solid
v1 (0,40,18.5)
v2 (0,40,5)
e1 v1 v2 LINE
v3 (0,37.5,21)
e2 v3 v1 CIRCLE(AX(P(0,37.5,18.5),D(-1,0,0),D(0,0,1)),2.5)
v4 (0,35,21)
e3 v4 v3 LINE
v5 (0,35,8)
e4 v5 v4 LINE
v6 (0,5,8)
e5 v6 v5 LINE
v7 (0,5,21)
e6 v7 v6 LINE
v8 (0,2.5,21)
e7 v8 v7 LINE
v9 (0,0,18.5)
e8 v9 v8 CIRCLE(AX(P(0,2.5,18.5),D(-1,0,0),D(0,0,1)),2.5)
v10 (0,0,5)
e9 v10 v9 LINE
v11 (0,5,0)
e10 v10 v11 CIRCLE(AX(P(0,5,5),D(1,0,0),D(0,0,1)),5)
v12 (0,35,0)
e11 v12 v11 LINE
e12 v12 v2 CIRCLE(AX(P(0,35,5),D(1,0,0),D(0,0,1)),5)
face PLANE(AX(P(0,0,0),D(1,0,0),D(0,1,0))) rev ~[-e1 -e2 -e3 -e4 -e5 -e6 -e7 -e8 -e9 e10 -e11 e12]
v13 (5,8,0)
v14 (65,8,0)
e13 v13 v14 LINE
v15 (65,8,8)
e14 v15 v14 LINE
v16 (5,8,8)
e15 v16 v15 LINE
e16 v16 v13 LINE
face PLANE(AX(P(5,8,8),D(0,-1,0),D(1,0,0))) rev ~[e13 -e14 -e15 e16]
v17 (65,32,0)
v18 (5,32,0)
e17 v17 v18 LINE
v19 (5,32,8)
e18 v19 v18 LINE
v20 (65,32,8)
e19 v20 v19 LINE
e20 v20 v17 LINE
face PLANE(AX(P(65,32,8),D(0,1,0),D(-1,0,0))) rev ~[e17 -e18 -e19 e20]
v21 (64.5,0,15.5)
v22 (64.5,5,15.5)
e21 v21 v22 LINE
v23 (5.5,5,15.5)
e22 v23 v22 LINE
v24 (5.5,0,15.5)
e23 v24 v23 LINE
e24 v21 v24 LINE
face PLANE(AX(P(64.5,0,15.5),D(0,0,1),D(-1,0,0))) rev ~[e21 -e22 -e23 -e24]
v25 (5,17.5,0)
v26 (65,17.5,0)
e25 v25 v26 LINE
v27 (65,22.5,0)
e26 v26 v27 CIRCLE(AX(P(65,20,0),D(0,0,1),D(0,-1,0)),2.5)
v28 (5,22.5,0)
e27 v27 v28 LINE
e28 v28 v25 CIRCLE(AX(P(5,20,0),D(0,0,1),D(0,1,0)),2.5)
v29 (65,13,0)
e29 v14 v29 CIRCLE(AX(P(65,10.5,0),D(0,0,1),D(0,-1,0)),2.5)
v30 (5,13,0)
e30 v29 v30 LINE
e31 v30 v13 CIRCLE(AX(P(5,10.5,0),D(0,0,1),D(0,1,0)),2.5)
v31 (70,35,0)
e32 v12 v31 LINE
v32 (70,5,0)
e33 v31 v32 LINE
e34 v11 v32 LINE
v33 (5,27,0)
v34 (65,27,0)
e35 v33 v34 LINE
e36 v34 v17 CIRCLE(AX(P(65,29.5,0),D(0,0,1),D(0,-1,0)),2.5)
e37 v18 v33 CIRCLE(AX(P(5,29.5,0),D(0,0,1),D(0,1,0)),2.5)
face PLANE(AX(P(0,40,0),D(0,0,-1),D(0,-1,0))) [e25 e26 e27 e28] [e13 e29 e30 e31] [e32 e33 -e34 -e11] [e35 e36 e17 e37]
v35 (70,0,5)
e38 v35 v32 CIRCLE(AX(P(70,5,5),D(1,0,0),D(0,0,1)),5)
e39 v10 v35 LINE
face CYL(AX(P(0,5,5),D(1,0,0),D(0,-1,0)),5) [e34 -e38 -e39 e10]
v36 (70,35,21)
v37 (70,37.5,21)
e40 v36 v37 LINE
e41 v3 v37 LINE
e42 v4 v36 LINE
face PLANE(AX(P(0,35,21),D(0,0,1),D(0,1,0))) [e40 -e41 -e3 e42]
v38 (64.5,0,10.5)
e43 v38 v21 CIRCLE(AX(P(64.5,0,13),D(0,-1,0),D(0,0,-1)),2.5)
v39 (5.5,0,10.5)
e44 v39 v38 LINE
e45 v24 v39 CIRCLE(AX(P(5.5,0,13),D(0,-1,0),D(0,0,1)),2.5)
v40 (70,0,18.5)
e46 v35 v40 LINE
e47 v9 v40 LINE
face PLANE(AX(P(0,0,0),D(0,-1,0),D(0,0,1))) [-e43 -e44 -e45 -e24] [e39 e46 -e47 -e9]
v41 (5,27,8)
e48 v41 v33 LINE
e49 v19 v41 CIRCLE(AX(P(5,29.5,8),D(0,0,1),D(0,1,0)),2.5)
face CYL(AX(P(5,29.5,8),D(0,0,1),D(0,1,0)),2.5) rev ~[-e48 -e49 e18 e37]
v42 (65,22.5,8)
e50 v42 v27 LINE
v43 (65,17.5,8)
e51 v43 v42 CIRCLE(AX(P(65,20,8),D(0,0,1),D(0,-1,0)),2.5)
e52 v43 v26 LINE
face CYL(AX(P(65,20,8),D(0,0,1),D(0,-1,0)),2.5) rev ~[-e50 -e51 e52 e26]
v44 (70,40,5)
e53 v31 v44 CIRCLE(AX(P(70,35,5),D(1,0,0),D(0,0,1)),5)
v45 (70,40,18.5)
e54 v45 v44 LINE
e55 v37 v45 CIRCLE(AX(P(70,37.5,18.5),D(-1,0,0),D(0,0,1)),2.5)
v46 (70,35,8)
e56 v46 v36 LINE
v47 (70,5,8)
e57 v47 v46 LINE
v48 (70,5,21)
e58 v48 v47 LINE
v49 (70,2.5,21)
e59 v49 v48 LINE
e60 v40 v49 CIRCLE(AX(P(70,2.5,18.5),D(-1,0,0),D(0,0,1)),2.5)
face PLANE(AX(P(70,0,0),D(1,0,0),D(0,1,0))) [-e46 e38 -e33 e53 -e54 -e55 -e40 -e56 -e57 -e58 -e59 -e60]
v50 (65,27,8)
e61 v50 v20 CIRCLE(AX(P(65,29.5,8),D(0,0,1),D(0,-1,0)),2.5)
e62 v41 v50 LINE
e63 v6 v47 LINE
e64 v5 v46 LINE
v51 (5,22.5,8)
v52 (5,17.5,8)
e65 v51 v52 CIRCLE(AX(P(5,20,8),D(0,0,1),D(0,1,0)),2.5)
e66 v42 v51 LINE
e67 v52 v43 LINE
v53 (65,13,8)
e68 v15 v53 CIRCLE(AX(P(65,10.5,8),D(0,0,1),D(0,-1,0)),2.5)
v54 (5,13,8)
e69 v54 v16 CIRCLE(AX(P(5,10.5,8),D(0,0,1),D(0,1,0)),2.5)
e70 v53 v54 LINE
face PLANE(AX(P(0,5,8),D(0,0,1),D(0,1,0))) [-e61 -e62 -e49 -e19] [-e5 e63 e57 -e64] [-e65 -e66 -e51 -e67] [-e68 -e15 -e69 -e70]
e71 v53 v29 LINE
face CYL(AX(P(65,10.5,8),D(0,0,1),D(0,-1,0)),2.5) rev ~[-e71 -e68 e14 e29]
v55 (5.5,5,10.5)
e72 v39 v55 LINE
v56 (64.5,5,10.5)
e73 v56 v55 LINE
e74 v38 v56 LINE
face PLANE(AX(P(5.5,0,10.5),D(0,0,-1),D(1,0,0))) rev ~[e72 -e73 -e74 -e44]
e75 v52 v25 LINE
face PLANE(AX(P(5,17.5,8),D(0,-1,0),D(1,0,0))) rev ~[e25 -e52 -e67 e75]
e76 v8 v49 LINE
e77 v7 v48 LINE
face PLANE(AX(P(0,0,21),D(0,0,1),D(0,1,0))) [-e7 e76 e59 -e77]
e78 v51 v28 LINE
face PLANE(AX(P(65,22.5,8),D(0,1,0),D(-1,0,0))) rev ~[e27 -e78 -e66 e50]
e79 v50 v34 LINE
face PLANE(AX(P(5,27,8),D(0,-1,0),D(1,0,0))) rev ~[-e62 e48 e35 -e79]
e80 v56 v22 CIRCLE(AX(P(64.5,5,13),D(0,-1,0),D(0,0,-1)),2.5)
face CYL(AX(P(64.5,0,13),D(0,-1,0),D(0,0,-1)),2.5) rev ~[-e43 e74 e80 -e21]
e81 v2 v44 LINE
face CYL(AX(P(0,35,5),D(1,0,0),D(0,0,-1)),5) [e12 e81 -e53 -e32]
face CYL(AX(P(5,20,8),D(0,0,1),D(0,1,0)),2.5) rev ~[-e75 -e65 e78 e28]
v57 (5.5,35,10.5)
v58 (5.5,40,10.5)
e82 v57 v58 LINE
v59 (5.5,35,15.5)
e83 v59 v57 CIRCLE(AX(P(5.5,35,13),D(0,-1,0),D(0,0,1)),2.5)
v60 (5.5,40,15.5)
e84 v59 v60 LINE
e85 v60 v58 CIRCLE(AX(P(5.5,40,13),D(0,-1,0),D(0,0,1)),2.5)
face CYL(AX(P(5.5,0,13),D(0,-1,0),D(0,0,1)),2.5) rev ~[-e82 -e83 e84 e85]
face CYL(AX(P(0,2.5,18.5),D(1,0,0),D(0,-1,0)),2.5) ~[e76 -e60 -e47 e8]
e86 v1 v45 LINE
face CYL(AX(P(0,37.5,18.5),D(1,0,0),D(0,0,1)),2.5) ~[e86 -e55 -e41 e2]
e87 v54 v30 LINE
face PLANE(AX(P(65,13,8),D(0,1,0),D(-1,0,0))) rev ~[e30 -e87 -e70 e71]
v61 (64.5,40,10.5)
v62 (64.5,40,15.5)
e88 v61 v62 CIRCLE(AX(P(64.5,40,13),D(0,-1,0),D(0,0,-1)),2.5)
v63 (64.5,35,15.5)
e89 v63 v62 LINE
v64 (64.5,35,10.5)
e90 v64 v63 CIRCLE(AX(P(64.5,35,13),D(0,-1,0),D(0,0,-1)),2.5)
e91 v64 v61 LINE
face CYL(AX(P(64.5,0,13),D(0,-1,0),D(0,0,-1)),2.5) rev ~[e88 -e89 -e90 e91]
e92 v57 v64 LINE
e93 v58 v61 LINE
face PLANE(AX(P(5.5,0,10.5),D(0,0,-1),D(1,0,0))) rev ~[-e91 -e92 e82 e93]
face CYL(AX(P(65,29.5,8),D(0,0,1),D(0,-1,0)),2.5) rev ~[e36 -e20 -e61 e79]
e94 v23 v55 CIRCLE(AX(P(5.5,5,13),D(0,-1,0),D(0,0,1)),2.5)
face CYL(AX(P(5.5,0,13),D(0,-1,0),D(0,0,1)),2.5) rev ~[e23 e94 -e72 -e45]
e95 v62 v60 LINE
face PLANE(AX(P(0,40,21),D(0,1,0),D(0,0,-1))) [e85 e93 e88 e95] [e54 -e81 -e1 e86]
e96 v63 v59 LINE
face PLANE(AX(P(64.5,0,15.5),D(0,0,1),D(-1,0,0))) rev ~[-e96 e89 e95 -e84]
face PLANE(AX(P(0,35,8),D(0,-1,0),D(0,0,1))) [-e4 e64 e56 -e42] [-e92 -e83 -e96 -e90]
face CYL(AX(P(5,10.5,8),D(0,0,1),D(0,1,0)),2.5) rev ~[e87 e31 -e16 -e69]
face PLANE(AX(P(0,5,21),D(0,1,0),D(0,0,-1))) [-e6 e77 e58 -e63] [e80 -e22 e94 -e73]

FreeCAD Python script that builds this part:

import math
import FreeCAD as App
import Part
import Sketcher
Q = App.Units.Quantity


def edges_at(feature, points):
    """Names of the edges that pass closest to the given points."""
    edges = feature.Shape.Edges
    near = lambda p: min(range(len(edges)), key=lambda i: edges[i].distToShape(Part.Vertex(*p))[0])
    return sorted({f"Edge{near(p) + 1}" for p in points})


def add_polygon(sketch, points):
    """Adds a closed chain of lines whose ends are joined by coincident constraints."""
    first, n = sketch.GeometryCount, len(points)
    for a, b in zip(points, points[1:] + points[:1]):
        sketch.addGeometry(Part.LineSegment(App.Vector(*a, 0), App.Vector(*b, 0)), False)
    for i in range(n):
        sketch.addConstraint(Sketcher.Constraint("Coincident", first + i, 2, first + (i + 1) % n, 1))

doc = App.newDocument("Part")
params = doc.addObject("Spreadsheet::Sheet", "Params")
for row, (alias, value) in enumerate([
    ("sketch1_width", "5 mm"),
    ("sketch1_width2", "30 mm"),
    ("sketch1_height", "13 mm"),
    ("pad1_length", "70 mm"),
    ("fillet_radius", "2.5 mm"),
    ("sketch2_radius", "2.5 mm"),
    ("sketch2_width", "60 mm"),
    ("pocket1_length", "8 mm"),
    ("sketch3_radius", "2.5 mm"),
    ("sketch3_width", "59 mm"),
    ("pocket2_length", "40 mm"),
    ("fillet2_radius", "5 mm"),
], start=1):
    params.set(f"A{row}", alias)
    params.set(f"B{row}", "=" + value)
    params.setAlias(f"B{row}", alias)

body = doc.addObject("PartDesign::Body", "Body")

sketch1 = doc.addObject("Sketcher::SketchObject", "Sketch")
body.addObject(sketch1)
sketch1.AttachmentSupport = (doc.YZ_Plane, [""])
sketch1.MapMode = "FlatFace"
add_polygon(sketch1, [(0, 21), (0, 0), (40, 0), (40, 21), (35, 21), (35, 8), (5, 8), (5, 21)])
sketch1.addConstraint([
    Sketcher.Constraint("Vertical", 0),
    Sketcher.Constraint("Horizontal", 1),
    Sketcher.Constraint("Vertical", 2),
    Sketcher.Constraint("Horizontal", 3),
    Sketcher.Constraint("Vertical", 4),
    Sketcher.Constraint("Horizontal", 5),
    Sketcher.Constraint("Vertical", 6),
    Sketcher.Constraint("Horizontal", 7),
    Sketcher.Constraint("Coincident", 0, 2, -1, 1),
    Sketcher.Constraint("Horizontal", 3, 2, 6, 2),
    Sketcher.Constraint("Equal", 3, 7),
    Sketcher.Constraint("DistanceX", 3, 2, 3, 1, Q("5 mm")),
    Sketcher.Constraint("DistanceX", 5, 2, 5, 1, Q("30 mm")),
    Sketcher.Constraint("DistanceY", 4, 2, 4, 1, Q("13 mm")),
    Sketcher.Constraint("DistanceY", -1, 1, 4, 2, Q("8 mm")),
])
sketch1.setExpression("Constraints[19]", "Params.sketch1_width")
sketch1.setExpression("Constraints[20]", "Params.sketch1_width2")
sketch1.setExpression("Constraints[21]", "Params.sketch1_height")
pad1 = doc.addObject("PartDesign::Pad", "Pad")
body.addObject(pad1)
pad1.Profile = sketch1
pad1.setExpression("Length", "Params.pad1_length")
doc.recompute()

fillet = doc.addObject("PartDesign::Fillet", "Fillet")
body.addObject(fillet)
fillet.Base = (pad1, edges_at(pad1, [(35, 40, 21), (35, 0, 21)]))
fillet.setExpression("Radius", "Params.fillet_radius")

sketch2 = doc.addObject("Sketcher::SketchObject", "Sketch001")
body.addObject(sketch2)
sketch2.AttachmentSupport = (doc.XY_Plane, [""])
sketch2.MapMode = "FlatFace"
sketch2.AttachmentOffset = App.Placement(App.Vector(0, 0, 8), App.Rotation())
sketch2.addGeometry([
    Part.ArcOfCircle(Part.Circle(App.Vector(5, 29.5, 0), App.Vector(0, 0, 1), 2.5), math.radians(90), math.radians(270)),
    Part.LineSegment(App.Vector(5, 27, 0), App.Vector(65, 27, 0)),
    Part.ArcOfCircle(Part.Circle(App.Vector(65, 29.5, 0), App.Vector(0, 0, 1), 2.5), math.radians(-90), math.radians(90)),
    Part.LineSegment(App.Vector(65, 32, 0), App.Vector(5, 32, 0)),
    Part.ArcOfCircle(Part.Circle(App.Vector(65, 20, 0), App.Vector(0, 0, 1), 2.5), math.radians(-90), math.radians(90)),
    Part.LineSegment(App.Vector(65, 22.5, 0), App.Vector(5, 22.5, 0)),
    Part.ArcOfCircle(Part.Circle(App.Vector(5, 20, 0), App.Vector(0, 0, 1), 2.5), math.radians(90), math.radians(270)),
    Part.LineSegment(App.Vector(5, 17.5, 0), App.Vector(65, 17.5, 0)),
    Part.ArcOfCircle(Part.Circle(App.Vector(65, 10.5, 0), App.Vector(0, 0, 1), 2.5), math.radians(-90), math.radians(90)),
    Part.LineSegment(App.Vector(65, 13, 0), App.Vector(5, 13, 0)),
    Part.ArcOfCircle(Part.Circle(App.Vector(5, 10.5, 0), App.Vector(0, 0, 1), 2.5), math.radians(90), math.radians(270)),
    Part.LineSegment(App.Vector(5, 8, 0), App.Vector(65, 8, 0)),
], False)
sketch2.addConstraint([
    Sketcher.Constraint("Tangent", 0, 2, 1, 1),
    Sketcher.Constraint("Tangent", 1, 2, 2, 1),
    Sketcher.Constraint("Tangent", 2, 2, 3, 1),
    Sketcher.Constraint("Tangent", 3, 2, 0, 1),
    Sketcher.Constraint("Tangent", 4, 2, 5, 1),
    Sketcher.Constraint("Tangent", 5, 2, 6, 1),
    Sketcher.Constraint("Tangent", 6, 2, 7, 1),
    Sketcher.Constraint("Tangent", 7, 2, 4, 1),
    Sketcher.Constraint("Tangent", 8, 2, 9, 1),
    Sketcher.Constraint("Tangent", 9, 2, 10, 1),
    Sketcher.Constraint("Tangent", 10, 2, 11, 1),
    Sketcher.Constraint("Tangent", 11, 2, 8, 1),
    Sketcher.Constraint("Horizontal", 1),
    Sketcher.Constraint("Horizontal", 3),
    Sketcher.Constraint("Horizontal", 5),
    Sketcher.Constraint("Horizontal", 7),
    Sketcher.Constraint("Horizontal", 9),
    Sketcher.Constraint("Horizontal", 11),
    Sketcher.Constraint("Equal", 2, 4),
    Sketcher.Constraint("Equal", 6, 8),
    Sketcher.Constraint("Vertical", 2, 3, 4, 3),
    Sketcher.Constraint("Vertical", 0, 3, 6, 3),
    Sketcher.Constraint("Vertical", 4, 3, 8, 3),
    Sketcher.Constraint("Vertical", 6, 3, 10, 3),
    Sketcher.Constraint("Radius", 0, Q("2.5 mm")),
    Sketcher.Constraint("DistanceX", -1, 1, 0, 3, Q("5 mm")),
    Sketcher.Constraint("DistanceY", 8, 3, 2, 3, Q("19 mm")),
    Sketcher.Constraint("DistanceX", 1, 1, 1, 2, Q("60 mm")),
    Sketcher.Constraint("DistanceY", -1, 1, 4, 3, Q("20 mm")),
    Sketcher.Constraint("DistanceY", -1, 1, 0, 2, Q("27 mm")),
])
sketch2.setExpression("Constraints[24]", "Params.sketch2_radius")
sketch2.setExpression("Constraints[27]", "Params.sketch2_width")
pocket1 = doc.addObject("PartDesign::Pocket", "Pocket")
body.addObject(pocket1)
pocket1.Profile = sketch2
pocket1.setExpression("Length", "Params.pocket1_length")

sketch3 = doc.addObject("Sketcher::SketchObject", "Sketch002")
body.addObject(sketch3)
sketch3.AttachmentSupport = (doc.XZ_Plane, [""])
sketch3.MapMode = "FlatFace"
sketch3.addGeometry([
    Part.ArcOfCircle(Part.Circle(App.Vector(5.5, 13, 0), App.Vector(0, 0, 1), 2.5), math.radians(90), math.radians(270)),
    Part.LineSegment(App.Vector(5.5, 10.5, 0), App.Vector(64.5, 10.5, 0)),
    Part.ArcOfCircle(Part.Circle(App.Vector(64.5, 13, 0), App.Vector(0, 0, 1), 2.5), math.radians(-90), math.radians(90)),
    Part.LineSegment(App.Vector(64.5, 15.5, 0), App.Vector(5.5, 15.5, 0)),
], False)
sketch3.addConstraint([
    Sketcher.Constraint("Tangent", 0, 2, 1, 1),
    Sketcher.Constraint("Tangent", 1, 2, 2, 1),
    Sketcher.Constraint("Tangent", 2, 2, 3, 1),
    Sketcher.Constraint("Tangent", 3, 2, 0, 1),
    Sketcher.Constraint("Horizontal", 1),
    Sketcher.Constraint("Horizontal", 3),
    Sketcher.Constraint("Radius", 0, Q("2.5 mm")),
    Sketcher.Constraint("DistanceX", 1, 1, 1, 2, Q("59 mm")),
    Sketcher.Constraint("DistanceY", -1, 1, 0, 3, Q("13 mm")),
    Sketcher.Constraint("DistanceX", -1, 1, 0, 3, Q("5.5 mm")),
])
sketch3.setExpression("Constraints[6]", "Params.sketch3_radius")
sketch3.setExpression("Constraints[7]", "Params.sketch3_width")
pocket2 = doc.addObject("PartDesign::Pocket", "Pocket001")
body.addObject(pocket2)
pocket2.Profile = sketch3
pocket2.setExpression("Length", "Params.pocket2_length")
doc.recompute()

fillet2 = doc.addObject("PartDesign::Fillet", "Fillet001")
body.addObject(fillet2)
fillet2.Base = (pocket2, edges_at(pocket2, [(35, 40, 0), (35, 0, 0)]))
fillet2.setExpression("Radius", "Params.fillet2_radius")

doc.recompute()
